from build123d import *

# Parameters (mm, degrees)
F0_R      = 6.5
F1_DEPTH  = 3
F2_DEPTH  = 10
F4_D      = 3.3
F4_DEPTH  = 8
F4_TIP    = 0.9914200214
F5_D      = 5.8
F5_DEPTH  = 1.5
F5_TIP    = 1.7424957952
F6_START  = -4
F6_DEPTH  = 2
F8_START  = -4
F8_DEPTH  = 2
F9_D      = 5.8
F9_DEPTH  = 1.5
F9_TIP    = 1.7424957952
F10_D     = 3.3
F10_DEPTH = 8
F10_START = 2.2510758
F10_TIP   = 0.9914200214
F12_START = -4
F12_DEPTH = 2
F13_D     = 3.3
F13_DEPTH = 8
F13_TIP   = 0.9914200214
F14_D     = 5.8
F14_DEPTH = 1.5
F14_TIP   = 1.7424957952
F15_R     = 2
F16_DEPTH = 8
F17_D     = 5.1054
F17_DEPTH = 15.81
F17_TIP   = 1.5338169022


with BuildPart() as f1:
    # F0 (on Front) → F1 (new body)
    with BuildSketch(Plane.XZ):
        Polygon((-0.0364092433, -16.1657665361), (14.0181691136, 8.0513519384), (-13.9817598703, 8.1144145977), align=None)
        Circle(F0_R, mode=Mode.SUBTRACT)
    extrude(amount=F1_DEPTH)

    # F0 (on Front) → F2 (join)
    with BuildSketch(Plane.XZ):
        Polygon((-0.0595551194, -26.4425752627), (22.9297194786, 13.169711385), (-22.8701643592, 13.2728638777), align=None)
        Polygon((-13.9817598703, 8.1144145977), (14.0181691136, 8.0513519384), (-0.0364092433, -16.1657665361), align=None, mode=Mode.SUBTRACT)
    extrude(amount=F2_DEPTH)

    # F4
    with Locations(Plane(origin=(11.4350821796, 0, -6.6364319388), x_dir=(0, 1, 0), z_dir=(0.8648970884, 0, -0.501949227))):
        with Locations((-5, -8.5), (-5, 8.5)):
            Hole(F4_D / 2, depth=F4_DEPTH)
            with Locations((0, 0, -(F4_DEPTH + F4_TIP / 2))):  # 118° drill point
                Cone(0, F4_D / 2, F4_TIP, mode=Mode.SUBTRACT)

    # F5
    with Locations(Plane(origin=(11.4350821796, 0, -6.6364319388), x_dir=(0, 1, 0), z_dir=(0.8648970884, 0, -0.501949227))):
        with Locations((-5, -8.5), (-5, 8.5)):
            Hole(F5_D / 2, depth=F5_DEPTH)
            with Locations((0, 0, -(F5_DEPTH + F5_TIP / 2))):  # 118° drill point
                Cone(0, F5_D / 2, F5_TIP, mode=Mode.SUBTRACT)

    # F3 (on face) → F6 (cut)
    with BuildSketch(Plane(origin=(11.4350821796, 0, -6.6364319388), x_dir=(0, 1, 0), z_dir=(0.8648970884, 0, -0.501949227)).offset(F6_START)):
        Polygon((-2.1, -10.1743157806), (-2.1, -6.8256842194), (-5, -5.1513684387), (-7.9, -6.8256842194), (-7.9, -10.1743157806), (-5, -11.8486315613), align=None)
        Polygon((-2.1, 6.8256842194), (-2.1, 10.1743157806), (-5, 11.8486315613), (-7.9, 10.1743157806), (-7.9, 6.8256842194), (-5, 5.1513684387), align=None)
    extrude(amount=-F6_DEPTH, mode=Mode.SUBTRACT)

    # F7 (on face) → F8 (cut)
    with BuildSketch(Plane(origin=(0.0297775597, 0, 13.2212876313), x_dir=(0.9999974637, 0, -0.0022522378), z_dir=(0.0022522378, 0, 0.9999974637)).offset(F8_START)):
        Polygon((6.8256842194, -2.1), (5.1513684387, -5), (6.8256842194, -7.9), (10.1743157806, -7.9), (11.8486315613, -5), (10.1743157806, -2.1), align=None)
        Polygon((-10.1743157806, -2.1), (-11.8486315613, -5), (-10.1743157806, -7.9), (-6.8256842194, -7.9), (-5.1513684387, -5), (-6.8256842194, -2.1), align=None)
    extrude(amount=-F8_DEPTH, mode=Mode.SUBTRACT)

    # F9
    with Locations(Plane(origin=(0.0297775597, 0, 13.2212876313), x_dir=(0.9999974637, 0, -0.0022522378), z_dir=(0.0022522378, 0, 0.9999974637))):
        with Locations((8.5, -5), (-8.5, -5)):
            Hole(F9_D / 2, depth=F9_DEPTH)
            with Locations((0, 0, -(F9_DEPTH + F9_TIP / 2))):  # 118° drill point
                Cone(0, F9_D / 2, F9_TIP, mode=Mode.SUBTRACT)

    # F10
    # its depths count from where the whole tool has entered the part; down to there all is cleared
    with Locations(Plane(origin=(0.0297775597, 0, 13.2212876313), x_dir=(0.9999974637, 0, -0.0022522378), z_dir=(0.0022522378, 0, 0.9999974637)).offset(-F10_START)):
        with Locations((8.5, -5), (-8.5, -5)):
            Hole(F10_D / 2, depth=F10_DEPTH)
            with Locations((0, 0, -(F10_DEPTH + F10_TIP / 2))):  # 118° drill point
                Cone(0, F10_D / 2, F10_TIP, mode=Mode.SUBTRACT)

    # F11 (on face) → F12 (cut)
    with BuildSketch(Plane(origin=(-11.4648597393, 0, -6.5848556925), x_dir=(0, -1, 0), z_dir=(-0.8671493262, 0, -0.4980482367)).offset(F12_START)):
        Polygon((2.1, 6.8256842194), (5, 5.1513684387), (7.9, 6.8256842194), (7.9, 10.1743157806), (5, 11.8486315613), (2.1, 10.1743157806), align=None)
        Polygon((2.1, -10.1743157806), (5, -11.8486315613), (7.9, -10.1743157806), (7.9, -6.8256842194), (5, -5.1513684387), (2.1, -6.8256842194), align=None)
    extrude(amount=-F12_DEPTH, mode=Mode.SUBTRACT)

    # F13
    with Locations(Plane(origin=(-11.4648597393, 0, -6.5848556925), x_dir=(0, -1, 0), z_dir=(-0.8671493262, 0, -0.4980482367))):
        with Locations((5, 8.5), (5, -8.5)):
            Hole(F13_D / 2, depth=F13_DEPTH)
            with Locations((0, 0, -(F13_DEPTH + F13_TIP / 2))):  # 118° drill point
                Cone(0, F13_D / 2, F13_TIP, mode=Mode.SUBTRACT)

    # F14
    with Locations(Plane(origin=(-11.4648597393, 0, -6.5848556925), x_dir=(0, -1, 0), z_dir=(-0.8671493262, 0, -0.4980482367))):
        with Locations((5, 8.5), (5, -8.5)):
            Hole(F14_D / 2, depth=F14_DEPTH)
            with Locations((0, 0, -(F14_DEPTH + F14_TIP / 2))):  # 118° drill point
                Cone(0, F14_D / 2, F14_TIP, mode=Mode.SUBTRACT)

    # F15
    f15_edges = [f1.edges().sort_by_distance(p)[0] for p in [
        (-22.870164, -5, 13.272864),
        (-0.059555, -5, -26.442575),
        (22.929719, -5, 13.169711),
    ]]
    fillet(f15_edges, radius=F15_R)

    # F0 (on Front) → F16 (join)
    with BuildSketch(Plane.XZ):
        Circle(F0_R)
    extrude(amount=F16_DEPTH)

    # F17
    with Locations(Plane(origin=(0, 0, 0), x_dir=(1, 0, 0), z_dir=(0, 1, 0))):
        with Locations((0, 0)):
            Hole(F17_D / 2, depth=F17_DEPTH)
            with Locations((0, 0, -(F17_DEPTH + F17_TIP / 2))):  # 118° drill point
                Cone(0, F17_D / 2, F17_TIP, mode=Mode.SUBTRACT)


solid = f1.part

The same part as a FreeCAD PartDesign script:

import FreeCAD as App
import Part
import Sketcher
Q = App.Units.Quantity


def edges_at(feature, points):
    """Names of the edges that pass closest to the given points."""
    edges = feature.Shape.Edges
    near = lambda p: min(range(len(edges)), key=lambda i: edges[i].distToShape(Part.Vertex(*p))[0])
    return sorted({f"Edge{near(p) + 1}" for p in points})


def add_polygon(sketch, points):
    """Adds a closed chain of lines whose ends are joined by coincident constraints."""
    first, n = sketch.GeometryCount, len(points)
    for a, b in zip(points, points[1:] + points[:1]):
        sketch.addGeometry(Part.LineSegment(App.Vector(*a, 0), App.Vector(*b, 0)), False)
    for i in range(n):
        sketch.addConstraint(Sketcher.Constraint("Coincident", first + i, 2, first + (i + 1) % n, 1))

doc = App.newDocument("Part")
body = doc.addObject("PartDesign::Body", "Body")

sketch1 = body.newObject("Sketcher::SketchObject", "Sketch")
sketch1.AttachmentSupport = (doc.getObject("XZ_Plane"), [""])
sketch1.MapMode = "FlatFace"
add_polygon(sketch1, [(-0.036409, -16.165767), (14.018169, 8.051352), (-13.98176, 8.114415)])
sketch1.addGeometry(Part.Circle(App.Vector(0, 0, 0), App.Vector(0, 0, 1), 6.5), False)
sketch1.addConstraint(Sketcher.Constraint("Coincident", 3, 3, -1, 1))
sketch1.addConstraint(Sketcher.Constraint("Equal", 0, 1))
sketch1.addConstraint(Sketcher.Constraint("Equal", 1, 2))
sketch1.addConstraint(Sketcher.Constraint("Diameter", 3, Q("13 mm")))
sketch1.addConstraint(Sketcher.Constraint("Distance", 0, Q("28 mm")))
sketch1.addConstraint(Sketcher.Constraint("DistanceX", -1, 1, 0, 2, Q("14.018169 mm")))
sketch1.addConstraint(Sketcher.Constraint("DistanceY", -1, 1, 0, 2, Q("8.051352 mm")))
sketch1.addConstraint(Sketcher.Constraint("DistanceX", 2, 2, -1, 1, Q("0.036409 mm")))
pad1 = body.newObject("PartDesign::Pad", "Pad")
pad1.Profile = sketch1
pad1.Length = 3

sketch2 = body.newObject("Sketcher::SketchObject", "Sketch001")
sketch2.AttachmentSupport = (doc.getObject("XZ_Plane"), [""])
sketch2.MapMode = "FlatFace"
add_polygon(sketch2, [(-0.059555, -26.442575), (22.929719, 13.169711), (-22.870164, 13.272864)])
add_polygon(sketch2, [(-0.036409, -16.165767), (-13.98176, 8.114415), (14.018169, 8.051352)])
sketch2.addConstraint(Sketcher.Constraint("Parallel", 2, 3))
sketch2.addConstraint(Sketcher.Constraint("Parallel", 1, 4))
sketch2.addConstraint(Sketcher.Constraint("Parallel", 0, 5))
sketch2.addConstraint(Sketcher.Constraint("Equal", 0, 1))
sketch2.addConstraint(Sketcher.Constraint("Equal", 1, 2))
sketch2.addConstraint(Sketcher.Constraint("Distance", 3, Q("28 mm")))
sketch2.addConstraint(Sketcher.Constraint("Distance", 0, Q("45.8 mm")))
sketch2.addConstraint(Sketcher.Constraint("DistanceX", -1, 1, 0, 2, Q("22.929719 mm")))
sketch2.addConstraint(Sketcher.Constraint("DistanceY", -1, 1, 0, 2, Q("13.169711 mm")))
sketch2.addConstraint(Sketcher.Constraint("DistanceX", 3, 2, -1, 1, Q("13.98176 mm")))
sketch2.addConstraint(Sketcher.Constraint("DistanceY", -1, 1, 4, 2, Q("8.051352 mm")))
sketch2.addConstraint(Sketcher.Constraint("DistanceX", 5, 2, -1, 1, Q("0.036409 mm")))
pad2 = body.newObject("PartDesign::Pad", "Pad001")
pad2.Profile = sketch2
pad2.Length = 10

sketch3 = body.newObject("Sketcher::SketchObject", "Sketch002")
sketch3.Placement = App.Placement(App.Vector(11.435082, 0, -6.636432), App.Rotation(App.Vector(0, 1, 0), App.Vector(0.501949227, 0, 0.864897088), App.Vector(0.864897088, 0, -0.501949227), "ZXY"))
sketch3.addGeometry(Part.Circle(App.Vector(-5, -8.5, 0), App.Vector(0, 0, 1), 1.65), False)
sketch3.addGeometry(Part.Circle(App.Vector(-5, 8.5, 0), App.Vector(0, 0, 1), 1.65), False)
sketch3.addConstraint(Sketcher.Constraint("Equal", 0, 1))
sketch3.addConstraint(Sketcher.Constraint("Symmetric", 0, 3, 1, 3, -1))
sketch3.addConstraint(Sketcher.Constraint("Diameter", 0, Q("3.3 mm")))
sketch3.addConstraint(Sketcher.Constraint("DistanceX", 0, 3, -1, 1, Q("5 mm")))
sketch3.addConstraint(Sketcher.Constraint("DistanceY", 0, 3, 1, 3, Q("17 mm")))
doc.recompute()
hole = body.newObject("PartDesign::Hole", "Hole")
hole.Profile = sketch3
hole.ThreadType = "None"
hole.Diameter = 3.3
hole.DepthType = "Dimension"
hole.Depth = 8
hole.DrillPoint = "Angled"
hole.DrillPointAngle = 118

sketch4 = body.newObject("Sketcher::SketchObject", "Sketch003")
sketch4.Placement = App.Placement(App.Vector(11.435082, 0, -6.636432), App.Rotation(App.Vector(0, 1, 0), App.Vector(0.501949227, 0, 0.864897088), App.Vector(0.864897088, 0, -0.501949227), "ZXY"))
sketch4.addGeometry(Part.Circle(App.Vector(-5, -8.5, 0), App.Vector(0, 0, 1), 2.9), False)
sketch4.addGeometry(Part.Circle(App.Vector(-5, 8.5, 0), App.Vector(0, 0, 1), 2.9), False)
sketch4.addConstraint(Sketcher.Constraint("Equal", 0, 1))
sketch4.addConstraint(Sketcher.Constraint("Symmetric", 0, 3, 1, 3, -1))
sketch4.addConstraint(Sketcher.Constraint("Diameter", 0, Q("5.8 mm")))
sketch4.addConstraint(Sketcher.Constraint("DistanceX", 0, 3, -1, 1, Q("5 mm")))
sketch4.addConstraint(Sketcher.Constraint("DistanceY", 0, 3, 1, 3, Q("17 mm")))
doc.recompute()
hole2 = body.newObject("PartDesign::Hole", "Hole001")
hole2.Profile = sketch4
hole2.ThreadType = "None"
hole2.Diameter = 5.8
hole2.DepthType = "Dimension"
hole2.Depth = 1.5
hole2.DrillPoint = "Angled"
hole2.DrillPointAngle = 118

sketch5 = body.newObject("Sketcher::SketchObject", "Sketch004")
sketch5.Placement = App.Placement(App.Vector(7.975494, 0, -4.628635), App.Rotation(App.Vector(0, 1, 0), App.Vector(0.501949227, 0, 0.864897088), App.Vector(0.864897088, 0, -0.501949227), "ZXY"))
add_polygon(sketch5, [(-2.1, -10.174316), (-2.1, -6.825684), (-5, -5.151368), (-7.9, -6.825684), (-7.9, -10.174316), (-5, -11.848632)])
add_polygon(sketch5, [(-2.1, 6.825684), (-2.1, 10.174316), (-5, 11.848632), (-7.9, 10.174316), (-7.9, 6.825684), (-5, 5.151368)])
sketch5.addConstraint(Sketcher.Constraint("Vertical", 0))
sketch5.addConstraint(Sketcher.Constraint("Vertical", 3))
sketch5.addConstraint(Sketcher.Constraint("Vertical", 6))
sketch5.addConstraint(Sketcher.Constraint("Vertical", 9))
sketch5.addConstraint(Sketcher.Constraint("Symmetric", 5, 2, 6, 2, -1))
sketch5.addConstraint(Sketcher.Constraint("Symmetric", 4, 2, 7, 2, -1))
sketch5.addConstraint(Sketcher.Constraint("Symmetric", 3, 2, 8, 2, -1))
sketch5.addConstraint(Sketcher.Constraint("Symmetric", 1, 2, 10, 2, -1))
sketch5.addConstraint(Sketcher.Constraint("Parallel", 1, 4))
sketch5.addConstraint(Sketcher.Constraint("Parallel", 2, 5))
sketch5.addConstraint(Sketcher.Constraint("Parallel", 4, 7))
sketch5.addConstraint(Sketcher.Constraint("Parallel", 7, 10))
sketch5.addConstraint(Sketcher.Constraint("Parallel", 8, 11))
sketch5.addConstraint(Sketcher.Constraint("Horizontal", 0, 2, 2, 2))
sketch5.addConstraint(Sketcher.Constraint("Horizontal", 3, 2, 5, 2))
sketch5.addConstraint(Sketcher.Constraint("Angle", 1, Q("150 deg")))
sketch5.addConstraint(Sketcher.Constraint("DistanceX", 1, 2, -1, 1, Q("5 mm")))
sketch5.addConstraint(Sketcher.Constraint("DistanceY", 0, 2, 6, 2, Q("17 mm")))
sketch5.addConstraint(Sketcher.Constraint("DistanceX", 0, 2, -1, 1, Q("2.1 mm")))
sketch5.addConstraint(Sketcher.Constraint("DistanceY", 0, 1, 0, 2, Q("3.348632 mm")))
pocket1 = body.newObject("PartDesign::Pocket", "Pocket")
pocket1.Profile = sketch5
pocket1.Length = 2

sketch6 = body.newObject("Sketcher::SketchObject", "Sketch005")
sketch6.Placement = App.Placement(App.Vector(0.020769, 0, 9.221298), App.Rotation(App.Vector(0.999997464, 0, -0.002252238), App.Vector(0, 1.000000001, 0), App.Vector(0.002252238, 0, 0.999997464), "ZXY"))
add_polygon(sketch6, [(6.825684, -2.1), (5.151368, -5), (6.825684, -7.9), (10.174316, -7.9), (11.848632, -5), (10.174316, -2.1)])
add_polygon(sketch6, [(-10.174316, -2.1), (-11.848632, -5), (-10.174316, -7.9), (-6.825684, -7.9), (-5.151368, -5), (-6.825684, -2.1)])
sketch6.addConstraint(Sketcher.Constraint("Horizontal", 2))
sketch6.addConstraint(Sketcher.Constraint("Horizontal", 5))
sketch6.addConstraint(Sketcher.Constraint("Horizontal", 8))
sketch6.addConstraint(Sketcher.Constraint("Horizontal", 11))
sketch6.addConstraint(Sketcher.Constraint("Symmetric", 3, 2, 6, 2, -2))
sketch6.addConstraint(Sketcher.Constraint("Symmetric", 2, 2, 7, 2, -2))
sketch6.addConstraint(Sketcher.Constraint("Symmetric", 0, 2, 9, 2, -2))
sketch6.addConstraint(Sketcher.Constraint("Symmetric", 5, 2, 10, 2, -2))
sketch6.addConstraint(Sketcher.Constraint("Parallel", 0, 3))
sketch6.addConstraint(Sketcher.Constraint("Parallel", 1, 4))
sketch6.addConstraint(Sketcher.Constraint("Parallel", 3, 6))
sketch6.addConstraint(Sketcher.Constraint("Parallel", 4, 7))
sketch6.addConstraint(Sketcher.Constraint("Parallel", 6, 9))
sketch6.addConstraint(Sketcher.Constraint("Horizontal", 0, 2, 3, 2))
sketch6.addConstraint(Sketcher.Constraint("Vertical", 2, 2, 4, 2))
sketch6.addConstraint(Sketcher.Constraint("Angle", 0, Q("-120 deg")))
sketch6.addConstraint(Sketcher.Constraint("DistanceY", 0, 2, -1, 1, Q("5 mm")))
sketch6.addConstraint(Sketcher.Constraint("DistanceX", 6, 2, 0, 2, Q("17 mm")))
sketch6.addConstraint(Sketcher.Constraint("DistanceY", 1, 2, -1, 1, Q("7.9 mm")))
sketch6.addConstraint(Sketcher.Constraint("DistanceX", 2, 1, 2, 2, Q("3.348632 mm")))
pocket2 = body.newObject("PartDesign::Pocket", "Pocket001")
pocket2.Profile = sketch6
pocket2.Length = 2

sketch7 = body.newObject("Sketcher::SketchObject", "Sketch006")
sketch7.Placement = App.Placement(App.Vector(0.029778, 0, 13.221288), App.Rotation(App.Vector(0.999997464, 0, -0.002252238), App.Vector(0, 1.000000001, 0), App.Vector(0.002252238, 0, 0.999997464), "ZXY"))
sketch7.addGeometry(Part.Circle(App.Vector(8.5, -5, 0), App.Vector(0, 0, 1), 2.9), False)
sketch7.addGeometry(Part.Circle(App.Vector(-8.5, -5, 0), App.Vector(0, 0, 1), 2.9), False)
sketch7.addConstraint(Sketcher.Constraint("Equal", 0, 1))
sketch7.addConstraint(Sketcher.Constraint("Symmetric", 0, 3, 1, 3, -2))
sketch7.addConstraint(Sketcher.Constraint("Diameter", 0, Q("5.8 mm")))
sketch7.addConstraint(Sketcher.Constraint("DistanceY", 0, 3, -1, 1, Q("5 mm")))
sketch7.addConstraint(Sketcher.Constraint("DistanceX", 1, 3, 0, 3, Q("17 mm")))
doc.recompute()
hole3 = body.newObject("PartDesign::Hole", "Hole002")
hole3.Profile = sketch7
hole3.ThreadType = "None"
hole3.Diameter = 5.8
hole3.DepthType = "Dimension"
hole3.Depth = 1.5
hole3.DrillPoint = "Angled"
hole3.DrillPointAngle = 118

sketch8 = body.newObject("Sketcher::SketchObject", "Sketch007")
sketch8.Placement = App.Placement(App.Vector(0.024708, 0, 10.970218), App.Rotation(App.Vector(0.999997464, 0, -0.002252238), App.Vector(0, 1.000000001, 0), App.Vector(0.002252238, 0, 0.999997464), "ZXY"))
sketch8.addGeometry(Part.Circle(App.Vector(8.5, -5, 0), App.Vector(0, 0, 1), 1.65), False)
sketch8.addGeometry(Part.Circle(App.Vector(-8.5, -5, 0), App.Vector(0, 0, 1), 1.65), False)
sketch8.addConstraint(Sketcher.Constraint("Equal", 0, 1))
sketch8.addConstraint(Sketcher.Constraint("Symmetric", 0, 3, 1, 3, -2))
sketch8.addConstraint(Sketcher.Constraint("Diameter", 0, Q("3.3 mm")))
sketch8.addConstraint(Sketcher.Constraint("DistanceY", 0, 3, -1, 1, Q("5 mm")))
sketch8.addConstraint(Sketcher.Constraint("DistanceX", 1, 3, 0, 3, Q("17 mm")))
doc.recompute()
hole4 = body.newObject("PartDesign::Hole", "Hole003")
hole4.Profile = sketch8
hole4.ThreadType = "None"
hole4.Diameter = 3.3
hole4.DepthType = "Dimension"
hole4.Depth = 8
hole4.DrillPoint = "Angled"
hole4.DrillPointAngle = 118

sketch9 = body.newObject("Sketcher::SketchObject", "Sketch008")
sketch9.Placement = App.Placement(App.Vector(-7.996262, 0, -4.592663), App.Rotation(App.Vector(0, -1, 0), App.Vector(-0.498048237, 0, 0.867149326), App.Vector(-0.867149326, 0, -0.498048237), "ZXY"))
add_polygon(sketch9, [(2.1, 6.825684), (5, 5.151368), (7.9, 6.825684), (7.9, 10.174316), (5, 11.848632), (2.1, 10.174316)])
add_polygon(sketch9, [(2.1, -10.174316), (5, -11.848632), (7.9, -10.174316), (7.9, -6.825684), (5, -5.151368), (2.1, -6.825684)])
sketch9.addConstraint(Sketcher.Constraint("Vertical", 2))
sketch9.addConstraint(Sketcher.Constraint("Vertical", 5))
sketch9.addConstraint(Sketcher.Constraint("Vertical", 8))
sketch9.addConstraint(Sketcher.Constraint("Vertical", 11))
sketch9.addConstraint(Sketcher.Constraint("Symmetric", 3, 2, 6, 2, -1))
sketch9.addConstraint(Sketcher.Constraint("Symmetric", 2, 2, 7, 2, -1))
sketch9.addConstraint(Sketcher.Constraint("Symmetric", 0, 2, 9, 2, -1))
sketch9.addConstraint(Sketcher.Constraint("Symmetric", 5, 2, 10, 2, -1))
sketch9.addConstraint(Sketcher.Constraint("Parallel", 0, 3))
sketch9.addConstraint(Sketcher.Constraint("Parallel", 1, 4))
sketch9.addConstraint(Sketcher.Constraint("Parallel", 3, 6))
sketch9.addConstraint(Sketcher.Constraint("Parallel", 4, 7))
sketch9.addConstraint(Sketcher.Constraint("Parallel", 6, 9))
sketch9.addConstraint(Sketcher.Constraint("Horizontal", 2, 2, 4, 2))
sketch9.addConstraint(Sketcher.Constraint("Horizontal", 1, 2, 5, 2))
sketch9.addConstraint(Sketcher.Constraint("Angle", 0, Q("-30 deg")))
sketch9.addConstraint(Sketcher.Constraint("DistanceX", -1, 1, 0, 2, Q("5 mm")))
sketch9.addConstraint(Sketcher.Constraint("DistanceY", 6, 2, 0, 2, Q("17 mm")))
sketch9.addConstraint(Sketcher.Constraint("DistanceX", -1, 1, 1, 2, Q("7.9 mm")))
sketch9.addConstraint(Sketcher.Constraint("DistanceY", 2, 1, 2, 2, Q("3.348632 mm")))
pocket3 = body.newObject("PartDesign::Pocket", "Pocket002")
pocket3.Profile = sketch9
pocket3.Length = 2

sketch10 = body.newObject("Sketcher::SketchObject", "Sketch009")
sketch10.Placement = App.Placement(App.Vector(-11.46486, 0, -6.584856), App.Rotation(App.Vector(0, -1, 0), App.Vector(-0.498048237, 0, 0.867149326), App.Vector(-0.867149326, 0, -0.498048237), "ZXY"))
sketch10.addGeometry(Part.Circle(App.Vector(5, 8.5, 0), App.Vector(0, 0, 1), 1.65), False)
sketch10.addGeometry(Part.Circle(App.Vector(5, -8.5, 0), App.Vector(0, 0, 1), 1.65), False)
sketch10.addConstraint(Sketcher.Constraint("Equal", 0, 1))
sketch10.addConstraint(Sketcher.Constraint("Symmetric", 0, 3, 1, 3, -1))
sketch10.addConstraint(Sketcher.Constraint("Diameter", 0, Q("3.3 mm")))
sketch10.addConstraint(Sketcher.Constraint("DistanceX", -1, 1, 0, 3, Q("5 mm")))
sketch10.addConstraint(Sketcher.Constraint("DistanceY", 1, 3, 0, 3, Q("17 mm")))
doc.recompute()
hole5 = body.newObject("PartDesign::Hole", "Hole004")
hole5.Profile = sketch10
hole5.ThreadType = "None"
hole5.Diameter = 3.3
hole5.DepthType = "Dimension"
hole5.Depth = 8
hole5.DrillPoint = "Angled"
hole5.DrillPointAngle = 118

sketch11 = body.newObject("Sketcher::SketchObject", "Sketch010")
sketch11.Placement = App.Placement(App.Vector(-11.46486, 0, -6.584856), App.Rotation(App.Vector(0, -1, 0), App.Vector(-0.498048237, 0, 0.867149326), App.Vector(-0.867149326, 0, -0.498048237), "ZXY"))
sketch11.addGeometry(Part.Circle(App.Vector(5, 8.5, 0), App.Vector(0, 0, 1), 2.9), False)
sketch11.addGeometry(Part.Circle(App.Vector(5, -8.5, 0), App.Vector(0, 0, 1), 2.9), False)
sketch11.addConstraint(Sketcher.Constraint("Equal", 0, 1))
sketch11.addConstraint(Sketcher.Constraint("Symmetric", 0, 3, 1, 3, -1))
sketch11.addConstraint(Sketcher.Constraint("Diameter", 0, Q("5.8 mm")))
sketch11.addConstraint(Sketcher.Constraint("DistanceX", -1, 1, 0, 3, Q("5 mm")))
sketch11.addConstraint(Sketcher.Constraint("DistanceY", 1, 3, 0, 3, Q("17 mm")))
doc.recompute()
hole6 = body.newObject("PartDesign::Hole", "Hole005")
hole6.Profile = sketch11
hole6.ThreadType = "None"
hole6.Diameter = 5.8
hole6.DepthType = "Dimension"
hole6.Depth = 1.5
hole6.DrillPoint = "Angled"
hole6.DrillPointAngle = 118
doc.recompute()

fillet = body.newObject("PartDesign::Fillet", "Fillet")
fillet.Base = (hole6, edges_at(hole6, [(-22.87, -5, 13.273), (-0.06, -5, -26.443), (22.93, -5, 13.17)]))
fillet.Radius = 2

sketch12 = body.newObject("Sketcher::SketchObject", "Sketch011")
sketch12.AttachmentSupport = (doc.getObject("XZ_Plane"), [""])
sketch12.MapMode = "FlatFace"
sketch12.addGeometry(Part.Circle(App.Vector(0, 0, 0), App.Vector(0, 0, 1), 6.5), False)
sketch12.addConstraint(Sketcher.Constraint("Coincident", 0, 3, -1, 1))
sketch12.addConstraint(Sketcher.Constraint("Diameter", 0, Q("13 mm")))
pad3 = body.newObject("PartDesign::Pad", "Pad002")
pad3.Profile = sketch12
pad3.Length = 8

sketch13 = body.newObject("Sketcher::SketchObject", "Sketch012")
sketch13.AttachmentSupport = (doc.getObject("XZ_Plane"), [""])
sketch13.MapMode = "FlatFace"
sketch13.addGeometry(Part.Circle(App.Vector(0, 0, 0), App.Vector(0, 0, 1), 2.5527), False)
sketch13.addConstraint(Sketcher.Constraint("Coincident", 0, 3, -1, 1))
sketch13.addConstraint(Sketcher.Constraint("Diameter", 0, Q("5.1054 mm")))
doc.recompute()
hole7 = body.newObject("PartDesign::Hole", "Hole006")
hole7.Profile = sketch13
hole7.ThreadType = "None"
hole7.Diameter = 5.1054
hole7.DepthType = "Dimension"
hole7.Depth = 15.81
hole7.DrillPoint = "Angled"
hole7.DrillPointAngle = 118
hole7.Reversed = True

doc.recompute()
